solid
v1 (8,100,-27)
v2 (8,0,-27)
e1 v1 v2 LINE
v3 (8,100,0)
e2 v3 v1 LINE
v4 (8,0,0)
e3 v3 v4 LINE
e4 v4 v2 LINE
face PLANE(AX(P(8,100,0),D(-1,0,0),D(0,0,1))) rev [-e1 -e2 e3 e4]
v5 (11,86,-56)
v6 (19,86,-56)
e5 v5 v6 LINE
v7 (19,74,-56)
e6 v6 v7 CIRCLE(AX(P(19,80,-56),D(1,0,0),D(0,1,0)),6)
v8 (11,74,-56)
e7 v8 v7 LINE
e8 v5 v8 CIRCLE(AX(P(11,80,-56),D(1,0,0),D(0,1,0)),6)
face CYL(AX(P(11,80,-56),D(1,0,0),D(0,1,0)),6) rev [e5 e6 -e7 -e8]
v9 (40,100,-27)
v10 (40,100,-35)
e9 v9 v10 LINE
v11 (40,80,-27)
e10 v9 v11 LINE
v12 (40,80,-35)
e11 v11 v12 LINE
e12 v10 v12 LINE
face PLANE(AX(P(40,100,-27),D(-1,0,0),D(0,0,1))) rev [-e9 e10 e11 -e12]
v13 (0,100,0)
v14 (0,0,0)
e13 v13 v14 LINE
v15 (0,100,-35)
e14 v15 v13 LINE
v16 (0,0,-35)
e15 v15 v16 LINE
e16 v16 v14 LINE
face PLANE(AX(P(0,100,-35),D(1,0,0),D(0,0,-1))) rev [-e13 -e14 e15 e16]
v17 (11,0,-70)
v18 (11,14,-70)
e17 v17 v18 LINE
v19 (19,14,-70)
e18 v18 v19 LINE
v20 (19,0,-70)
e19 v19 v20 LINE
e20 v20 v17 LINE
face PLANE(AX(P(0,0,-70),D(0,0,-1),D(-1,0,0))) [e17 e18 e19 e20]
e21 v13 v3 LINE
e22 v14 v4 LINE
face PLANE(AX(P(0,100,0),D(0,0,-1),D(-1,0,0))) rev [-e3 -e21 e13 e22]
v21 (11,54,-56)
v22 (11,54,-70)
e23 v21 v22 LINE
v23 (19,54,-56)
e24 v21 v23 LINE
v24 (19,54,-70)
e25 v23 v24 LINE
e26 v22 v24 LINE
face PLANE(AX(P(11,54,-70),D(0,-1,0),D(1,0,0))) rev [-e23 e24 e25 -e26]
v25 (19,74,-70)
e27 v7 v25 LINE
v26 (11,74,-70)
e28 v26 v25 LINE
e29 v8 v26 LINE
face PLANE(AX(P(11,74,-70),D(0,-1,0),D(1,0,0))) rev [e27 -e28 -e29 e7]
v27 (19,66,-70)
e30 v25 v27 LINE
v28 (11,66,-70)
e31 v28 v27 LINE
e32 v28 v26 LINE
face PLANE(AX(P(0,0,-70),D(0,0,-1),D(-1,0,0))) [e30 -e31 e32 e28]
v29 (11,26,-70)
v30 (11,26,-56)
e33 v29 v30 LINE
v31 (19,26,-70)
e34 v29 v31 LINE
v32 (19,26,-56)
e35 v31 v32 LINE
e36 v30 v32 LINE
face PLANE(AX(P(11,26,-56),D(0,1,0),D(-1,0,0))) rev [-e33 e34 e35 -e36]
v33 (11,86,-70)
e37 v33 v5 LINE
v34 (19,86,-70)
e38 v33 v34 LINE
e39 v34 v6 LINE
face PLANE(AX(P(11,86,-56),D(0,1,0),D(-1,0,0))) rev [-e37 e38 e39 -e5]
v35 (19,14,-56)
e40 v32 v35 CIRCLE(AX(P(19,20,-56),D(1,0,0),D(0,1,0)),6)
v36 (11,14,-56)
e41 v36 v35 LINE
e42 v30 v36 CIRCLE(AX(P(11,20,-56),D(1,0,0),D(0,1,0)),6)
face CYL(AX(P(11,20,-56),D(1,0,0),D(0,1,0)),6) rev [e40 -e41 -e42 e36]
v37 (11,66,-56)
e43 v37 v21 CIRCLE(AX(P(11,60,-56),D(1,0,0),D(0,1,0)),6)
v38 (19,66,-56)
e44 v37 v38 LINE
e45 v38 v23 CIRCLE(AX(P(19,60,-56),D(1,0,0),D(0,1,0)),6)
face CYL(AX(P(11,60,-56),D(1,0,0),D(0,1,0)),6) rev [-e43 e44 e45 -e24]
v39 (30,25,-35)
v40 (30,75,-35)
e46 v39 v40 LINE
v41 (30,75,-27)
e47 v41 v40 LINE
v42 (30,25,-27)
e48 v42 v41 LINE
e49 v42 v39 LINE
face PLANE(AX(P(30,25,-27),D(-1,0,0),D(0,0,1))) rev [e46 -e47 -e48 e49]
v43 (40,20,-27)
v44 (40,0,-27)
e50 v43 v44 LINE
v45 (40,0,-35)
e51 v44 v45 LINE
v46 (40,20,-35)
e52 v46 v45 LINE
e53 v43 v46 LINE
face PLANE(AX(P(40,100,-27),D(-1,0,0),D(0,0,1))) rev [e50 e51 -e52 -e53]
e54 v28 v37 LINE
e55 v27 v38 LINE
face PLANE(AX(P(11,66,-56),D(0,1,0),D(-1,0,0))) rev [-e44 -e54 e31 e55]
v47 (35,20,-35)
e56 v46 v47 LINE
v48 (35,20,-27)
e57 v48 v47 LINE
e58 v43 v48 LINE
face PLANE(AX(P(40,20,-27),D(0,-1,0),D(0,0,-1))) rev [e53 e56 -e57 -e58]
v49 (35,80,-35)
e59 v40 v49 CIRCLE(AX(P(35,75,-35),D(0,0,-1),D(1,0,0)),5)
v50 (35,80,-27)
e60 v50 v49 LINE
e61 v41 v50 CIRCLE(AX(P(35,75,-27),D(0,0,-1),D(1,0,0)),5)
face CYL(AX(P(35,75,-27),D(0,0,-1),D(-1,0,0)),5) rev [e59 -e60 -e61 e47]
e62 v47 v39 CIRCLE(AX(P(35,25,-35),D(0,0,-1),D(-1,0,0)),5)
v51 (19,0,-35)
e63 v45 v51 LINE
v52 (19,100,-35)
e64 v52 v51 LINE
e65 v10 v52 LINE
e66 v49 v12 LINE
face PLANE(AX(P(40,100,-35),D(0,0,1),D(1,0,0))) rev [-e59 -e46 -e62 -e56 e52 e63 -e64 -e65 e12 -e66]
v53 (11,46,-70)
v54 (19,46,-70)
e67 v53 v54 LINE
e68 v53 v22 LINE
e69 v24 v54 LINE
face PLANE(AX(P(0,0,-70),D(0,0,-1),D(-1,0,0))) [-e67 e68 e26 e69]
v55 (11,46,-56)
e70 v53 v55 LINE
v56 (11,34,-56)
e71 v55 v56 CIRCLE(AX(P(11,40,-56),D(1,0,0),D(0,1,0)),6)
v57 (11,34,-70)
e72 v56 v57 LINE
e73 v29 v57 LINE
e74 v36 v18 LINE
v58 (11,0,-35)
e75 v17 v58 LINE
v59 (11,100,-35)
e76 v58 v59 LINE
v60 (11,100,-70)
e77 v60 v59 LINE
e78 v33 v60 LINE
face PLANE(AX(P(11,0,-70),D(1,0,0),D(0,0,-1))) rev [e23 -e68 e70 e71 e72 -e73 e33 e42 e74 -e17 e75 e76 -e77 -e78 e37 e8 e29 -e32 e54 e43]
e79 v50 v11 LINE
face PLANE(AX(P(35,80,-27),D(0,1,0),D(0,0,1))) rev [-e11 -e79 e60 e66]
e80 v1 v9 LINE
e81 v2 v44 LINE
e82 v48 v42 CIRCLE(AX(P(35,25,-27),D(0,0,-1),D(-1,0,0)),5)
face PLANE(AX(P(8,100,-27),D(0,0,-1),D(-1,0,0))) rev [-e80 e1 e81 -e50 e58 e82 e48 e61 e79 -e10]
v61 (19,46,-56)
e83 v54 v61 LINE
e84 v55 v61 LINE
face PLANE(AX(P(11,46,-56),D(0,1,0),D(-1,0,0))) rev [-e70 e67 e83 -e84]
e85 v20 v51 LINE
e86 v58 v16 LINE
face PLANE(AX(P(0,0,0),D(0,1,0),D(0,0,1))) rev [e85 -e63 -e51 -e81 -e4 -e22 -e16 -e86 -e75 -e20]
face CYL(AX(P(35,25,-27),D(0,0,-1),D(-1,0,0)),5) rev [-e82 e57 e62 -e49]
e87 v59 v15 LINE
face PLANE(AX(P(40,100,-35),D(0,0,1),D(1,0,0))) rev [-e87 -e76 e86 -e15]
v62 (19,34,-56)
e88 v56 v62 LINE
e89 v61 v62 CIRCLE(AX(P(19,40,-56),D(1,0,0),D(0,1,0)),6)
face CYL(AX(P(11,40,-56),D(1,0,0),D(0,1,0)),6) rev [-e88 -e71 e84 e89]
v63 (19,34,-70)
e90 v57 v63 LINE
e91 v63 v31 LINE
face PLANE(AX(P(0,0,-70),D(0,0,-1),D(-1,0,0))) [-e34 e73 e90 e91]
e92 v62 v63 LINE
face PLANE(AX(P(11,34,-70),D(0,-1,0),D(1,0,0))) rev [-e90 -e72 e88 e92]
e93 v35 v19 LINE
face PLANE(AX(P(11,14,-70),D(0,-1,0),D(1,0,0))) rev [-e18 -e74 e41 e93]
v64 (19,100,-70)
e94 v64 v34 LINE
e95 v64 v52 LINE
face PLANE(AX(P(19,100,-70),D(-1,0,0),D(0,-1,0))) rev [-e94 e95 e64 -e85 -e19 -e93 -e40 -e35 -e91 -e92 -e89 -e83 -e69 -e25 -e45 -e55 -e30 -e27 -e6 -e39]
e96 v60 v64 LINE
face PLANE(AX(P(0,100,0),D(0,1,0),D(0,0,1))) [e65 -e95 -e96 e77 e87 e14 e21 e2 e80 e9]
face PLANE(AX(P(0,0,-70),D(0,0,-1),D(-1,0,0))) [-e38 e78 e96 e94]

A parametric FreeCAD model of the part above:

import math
import FreeCAD as App
import Part
import Sketcher
from FreeCAD import Vector

doc = App.newDocument("Part")
body = doc.addObject("PartDesign::Body", "Body")

# Sketch on XZ plane
sketch1 = body.newObject("Sketcher::SketchObject", "Sketch")
sketch1.AttachmentSupport = (doc.getObject("XZ_Plane"), [""])
sketch1.MapMode = "FlatFace"
sketch1.addGeometry([
    Part.LineSegment(Vector(0, 0, 0), Vector(8, 0, 0)),  # 0
    Part.LineSegment(Vector(8, 0, 0), Vector(8, -27, 0)),  # 1
    Part.LineSegment(Vector(8, -27, 0), Vector(40, -27, 0)),  # 2
    Part.LineSegment(Vector(40, -27, 0), Vector(40, -35, 0)),  # 3
    Part.LineSegment(Vector(40, -35, 0), Vector(0, -35, 0)),  # 4
    Part.LineSegment(Vector(0, -35, 0), Vector(0, 0, 0)),  # 5
], False)
sketch1.addConstraint([
    Sketcher.Constraint("Coincident", 0, 2, 1, 1),
    Sketcher.Constraint("Coincident", 1, 2, 2, 1),
    Sketcher.Constraint("Coincident", 2, 2, 3, 1),
    Sketcher.Constraint("Coincident", 3, 2, 4, 1),
    Sketcher.Constraint("Coincident", 4, 2, 5, 1),
    Sketcher.Constraint("Coincident", 5, 2, 0, 1),
    Sketcher.Constraint("Horizontal", 0),
    Sketcher.Constraint("Vertical", 1),
    Sketcher.Constraint("Horizontal", 2),
    Sketcher.Constraint("Vertical", 3),
    Sketcher.Constraint("Horizontal", 4),
    Sketcher.Constraint("Vertical", 5),
    Sketcher.Constraint("Coincident", 5, 2, -1, 1),
    Sketcher.Constraint("Equal", 0, 3),
    Sketcher.Constraint("DistanceX", 0, 1, 0, 2, 8.0),
    Sketcher.Constraint("DistanceX", 2, 1, 2, 2, 32.0),
    Sketcher.Constraint("DistanceY", 1, 2, 1, 1, 27.0),
])
pad1 = body.newObject("PartDesign::Pad", "Pad")
pad1.Profile = sketch1
pad1.Length = 100
pad1.Reversed = True

# Sketch on XY plane
sketch2 = body.newObject("Sketcher::SketchObject", "Sketch001")
sketch2.AttachmentSupport = (doc.getObject("XY_Plane"), [""])
sketch2.MapMode = "FlatFace"
sketch2.AttachmentOffset = App.Placement(Vector(0, 0, -35), App.Rotation())
sketch2.addGeometry([
    Part.LineSegment(Vector(40, 20, 0), Vector(35, 20, 0)),  # 0
    Part.ArcOfCircle(Part.Circle(Vector(35, 25, 0), Vector(0, 0, 1), 5), math.radians(180), math.radians(270)),  # 1
    Part.LineSegment(Vector(30, 25, 0), Vector(30, 75, 0)),  # 2
    Part.ArcOfCircle(Part.Circle(Vector(35, 75, 0), Vector(0, 0, 1), 5), math.radians(90), math.radians(180)),  # 3
    Part.LineSegment(Vector(35, 80, 0), Vector(40, 80, 0)),  # 4
    Part.LineSegment(Vector(40, 80, 0), Vector(40, 20, 0)),  # 5
], False)
sketch2.addConstraint([
    Sketcher.Constraint("Tangent", 0, 2, 1, 2),
    Sketcher.Constraint("Tangent", 1, 1, 2, 1),
    Sketcher.Constraint("Tangent", 2, 2, 3, 2),
    Sketcher.Constraint("Tangent", 3, 1, 4, 1),
    Sketcher.Constraint("Coincident", 4, 2, 5, 1),
    Sketcher.Constraint("Coincident", 5, 2, 0, 1),
    Sketcher.Constraint("Horizontal", 0),
    Sketcher.Constraint("Vertical", 2),
    Sketcher.Constraint("Horizontal", 4),
    Sketcher.Constraint("Vertical", 5),
    Sketcher.Constraint("Equal", 1, 3),
    Sketcher.Constraint("Radius", 1, 5.0),
    Sketcher.Constraint("DistanceX", 0, 2, 0, 1, 5.0),
    Sketcher.Constraint("DistanceY", 2, 1, 2, 2, 50.0),
    Sketcher.Constraint("DistanceX", -1, 1, 1, 3, 35.0),
    Sketcher.Constraint("DistanceY", -1, 1, 1, 3, 25.0),
])
pocket1 = body.newObject("PartDesign::Pocket", "Pocket")
pocket1.Profile = sketch2
pocket1.Length = 8
pocket1.Reversed = True

# Sketch on XY plane
sketch3 = body.newObject("Sketcher::SketchObject", "Sketch002")
sketch3.AttachmentSupport = (doc.getObject("XY_Plane"), [""])
sketch3.MapMode = "FlatFace"
sketch3.AttachmentOffset = App.Placement(Vector(0, 0, -35), App.Rotation())
sketch3.addGeometry([
    Part.LineSegment(Vector(19, 100, 0), Vector(19, 0, 0)),
    Part.LineSegment(Vector(19, 0, 0), Vector(11, 0, 0)),
    Part.LineSegment(Vector(11, 0, 0), Vector(11, 100, 0)),
    Part.LineSegment(Vector(11, 100, 0), Vector(19, 100, 0)),
], False)
sketch3.addConstraint([
    Sketcher.Constraint("Coincident", 0, 2, 1, 1),
    Sketcher.Constraint("Coincident", 1, 2, 2, 1),
    Sketcher.Constraint("Coincident", 2, 2, 3, 1),
    Sketcher.Constraint("Coincident", 3, 2, 0, 1),
    Sketcher.Constraint("Vertical", 0),
    Sketcher.Constraint("Horizontal", 1),
    Sketcher.Constraint("Vertical", 2),
    Sketcher.Constraint("Horizontal", 3),
    Sketcher.Constraint("PointOnObject", 0, 2, -1),
    Sketcher.Constraint("DistanceX", 1, 2, 1, 1, 8.0),
    Sketcher.Constraint("DistanceY", 0, 2, 0, 1, 100.0),
    Sketcher.Constraint("DistanceX", -1, 1, 0, 2, 19.0),
])
pad2 = body.newObject("PartDesign::Pad", "Pad001")
pad2.Profile = sketch3
pad2.Length = 35
pad2.Reversed = True

# Sketch on YZ plane
sketch4 = body.newObject("Sketcher::SketchObject", "Sketch003")
sketch4.AttachmentSupport = (doc.getObject("YZ_Plane"), [""])
sketch4.MapMode = "FlatFace"
sketch4.AttachmentOffset = App.Placement(Vector(0, 0, 19), App.Rotation())
sketch4.addGeometry([
    Part.LineSegment(Vector(86, -70, 0), Vector(86, -56, 0)),  # 0
    Part.ArcOfCircle(Part.Circle(Vector(80, -56, 0), Vector(0, 0, 1), 6), math.radians(0), math.radians(180)),  # 1
    Part.LineSegment(Vector(74, -56, 0), Vector(74, -70, 0)),  # 2
    Part.LineSegment(Vector(74, -70, 0), Vector(86, -70, 0)),  # 3
    Part.LineSegment(Vector(54, -56, 0), Vector(54, -70, 0)),  # 4
    Part.LineSegment(Vector(54, -70, 0), Vector(66, -70, 0)),  # 5
    Part.LineSegment(Vector(66, -70, 0), Vector(66, -56, 0)),  # 6
    Part.ArcOfCircle(Part.Circle(Vector(60, -56, 0), Vector(0, 0, 1), 6), math.radians(0), math.radians(180)),  # 7
    Part.LineSegment(Vector(34, -56, 0), Vector(34, -70, 0)),  # 8
    Part.LineSegment(Vector(34, -70, 0), Vector(46, -70, 0)),  # 9
    Part.LineSegment(Vector(46, -70, 0), Vector(46, -56, 0)),  # 10
    Part.ArcOfCircle(Part.Circle(Vector(40, -56, 0), Vector(0, 0, 1), 6), math.radians(0), math.radians(180)),  # 11
    Part.LineSegment(Vector(14, -56, 0), Vector(14, -70, 0)),  # 12
    Part.LineSegment(Vector(14, -70, 0), Vector(26, -70, 0)),  # 13
    Part.LineSegment(Vector(26, -70, 0), Vector(26, -56, 0)),  # 14
    Part.ArcOfCircle(Part.Circle(Vector(20, -56, 0), Vector(0, 0, 1), 6), math.radians(0), math.radians(180)),  # 15
], False)
sketch4.addConstraint([
    Sketcher.Constraint("Tangent", 0, 2, 1, 1),
    Sketcher.Constraint("Tangent", 1, 2, 2, 1),
    Sketcher.Constraint("Coincident", 2, 2, 3, 1),
    Sketcher.Constraint("Coincident", 3, 2, 0, 1),
    Sketcher.Constraint("Coincident", 4, 2, 5, 1),
    Sketcher.Constraint("Coincident", 5, 2, 6, 1),
    Sketcher.Constraint("Tangent", 6, 2, 7, 1),
    Sketcher.Constraint("Tangent", 7, 2, 4, 1),
    Sketcher.Constraint("Coincident", 8, 2, 9, 1),
    Sketcher.Constraint("Coincident", 9, 2, 10, 1),
    Sketcher.Constraint("Tangent", 10, 2, 11, 1),
    Sketcher.Constraint("Tangent", 11, 2, 8, 1),
    Sketcher.Constraint("Coincident", 12, 2, 13, 1),
    Sketcher.Constraint("Coincident", 13, 2, 14, 1),
    Sketcher.Constraint("Tangent", 14, 2, 15, 1),
    Sketcher.Constraint("Tangent", 15, 2, 12, 1),
    Sketcher.Constraint("Vertical", 0),
    Sketcher.Constraint("Vertical", 2),
    Sketcher.Constraint("Horizontal", 3),
    Sketcher.Constraint("Vertical", 4),
    Sketcher.Constraint("Horizontal", 5),
    Sketcher.Constraint("Vertical", 6),
    Sketcher.Constraint("Vertical", 8),
    Sketcher.Constraint("Horizontal", 9),
    Sketcher.Constraint("Vertical", 10),
    Sketcher.Constraint("Vertical", 12),
    Sketcher.Constraint("Horizontal", 13),
    Sketcher.Constraint("Vertical", 14),
    Sketcher.Constraint("Equal", 1, 7),
    Sketcher.Constraint("Equal", 7, 11),
    Sketcher.Constraint("Equal", 11, 15),
    Sketcher.Constraint("Horizontal", 1, 3, 7, 3),
    Sketcher.Constraint("Horizontal", 7, 3, 11, 3),
    Sketcher.Constraint("Horizontal", 11, 3, 15, 3),
    Sketcher.Constraint("Horizontal", 3, 2, 4, 2),
    Sketcher.Constraint("Horizontal", 5, 2, 8, 2),
    Sketcher.Constraint("Horizontal", 9, 2, 12, 2),
    Sketcher.Constraint("Radius", 1, 6.0),
    Sketcher.Constraint("DistanceY", 0, 1, 0, 2, 14.0),
    Sketcher.Constraint("DistanceX", -1, 1, 1, 3, 80.0),
    Sketcher.Constraint("DistanceY", 1, 3, -1, 1, 56.0),
    Sketcher.Constraint("DistanceX", -1, 1, 7, 3, 60.0),
    Sketcher.Constraint("DistanceX", -1, 1, 11, 3, 40.0),
    Sketcher.Constraint("DistanceX", -1, 1, 15, 3, 20.0),
])
pocket2 = body.newObject("PartDesign::Pocket", "Pocket001")
pocket2.Profile = sketch4
pocket2.Length = 8

doc.recompute()
